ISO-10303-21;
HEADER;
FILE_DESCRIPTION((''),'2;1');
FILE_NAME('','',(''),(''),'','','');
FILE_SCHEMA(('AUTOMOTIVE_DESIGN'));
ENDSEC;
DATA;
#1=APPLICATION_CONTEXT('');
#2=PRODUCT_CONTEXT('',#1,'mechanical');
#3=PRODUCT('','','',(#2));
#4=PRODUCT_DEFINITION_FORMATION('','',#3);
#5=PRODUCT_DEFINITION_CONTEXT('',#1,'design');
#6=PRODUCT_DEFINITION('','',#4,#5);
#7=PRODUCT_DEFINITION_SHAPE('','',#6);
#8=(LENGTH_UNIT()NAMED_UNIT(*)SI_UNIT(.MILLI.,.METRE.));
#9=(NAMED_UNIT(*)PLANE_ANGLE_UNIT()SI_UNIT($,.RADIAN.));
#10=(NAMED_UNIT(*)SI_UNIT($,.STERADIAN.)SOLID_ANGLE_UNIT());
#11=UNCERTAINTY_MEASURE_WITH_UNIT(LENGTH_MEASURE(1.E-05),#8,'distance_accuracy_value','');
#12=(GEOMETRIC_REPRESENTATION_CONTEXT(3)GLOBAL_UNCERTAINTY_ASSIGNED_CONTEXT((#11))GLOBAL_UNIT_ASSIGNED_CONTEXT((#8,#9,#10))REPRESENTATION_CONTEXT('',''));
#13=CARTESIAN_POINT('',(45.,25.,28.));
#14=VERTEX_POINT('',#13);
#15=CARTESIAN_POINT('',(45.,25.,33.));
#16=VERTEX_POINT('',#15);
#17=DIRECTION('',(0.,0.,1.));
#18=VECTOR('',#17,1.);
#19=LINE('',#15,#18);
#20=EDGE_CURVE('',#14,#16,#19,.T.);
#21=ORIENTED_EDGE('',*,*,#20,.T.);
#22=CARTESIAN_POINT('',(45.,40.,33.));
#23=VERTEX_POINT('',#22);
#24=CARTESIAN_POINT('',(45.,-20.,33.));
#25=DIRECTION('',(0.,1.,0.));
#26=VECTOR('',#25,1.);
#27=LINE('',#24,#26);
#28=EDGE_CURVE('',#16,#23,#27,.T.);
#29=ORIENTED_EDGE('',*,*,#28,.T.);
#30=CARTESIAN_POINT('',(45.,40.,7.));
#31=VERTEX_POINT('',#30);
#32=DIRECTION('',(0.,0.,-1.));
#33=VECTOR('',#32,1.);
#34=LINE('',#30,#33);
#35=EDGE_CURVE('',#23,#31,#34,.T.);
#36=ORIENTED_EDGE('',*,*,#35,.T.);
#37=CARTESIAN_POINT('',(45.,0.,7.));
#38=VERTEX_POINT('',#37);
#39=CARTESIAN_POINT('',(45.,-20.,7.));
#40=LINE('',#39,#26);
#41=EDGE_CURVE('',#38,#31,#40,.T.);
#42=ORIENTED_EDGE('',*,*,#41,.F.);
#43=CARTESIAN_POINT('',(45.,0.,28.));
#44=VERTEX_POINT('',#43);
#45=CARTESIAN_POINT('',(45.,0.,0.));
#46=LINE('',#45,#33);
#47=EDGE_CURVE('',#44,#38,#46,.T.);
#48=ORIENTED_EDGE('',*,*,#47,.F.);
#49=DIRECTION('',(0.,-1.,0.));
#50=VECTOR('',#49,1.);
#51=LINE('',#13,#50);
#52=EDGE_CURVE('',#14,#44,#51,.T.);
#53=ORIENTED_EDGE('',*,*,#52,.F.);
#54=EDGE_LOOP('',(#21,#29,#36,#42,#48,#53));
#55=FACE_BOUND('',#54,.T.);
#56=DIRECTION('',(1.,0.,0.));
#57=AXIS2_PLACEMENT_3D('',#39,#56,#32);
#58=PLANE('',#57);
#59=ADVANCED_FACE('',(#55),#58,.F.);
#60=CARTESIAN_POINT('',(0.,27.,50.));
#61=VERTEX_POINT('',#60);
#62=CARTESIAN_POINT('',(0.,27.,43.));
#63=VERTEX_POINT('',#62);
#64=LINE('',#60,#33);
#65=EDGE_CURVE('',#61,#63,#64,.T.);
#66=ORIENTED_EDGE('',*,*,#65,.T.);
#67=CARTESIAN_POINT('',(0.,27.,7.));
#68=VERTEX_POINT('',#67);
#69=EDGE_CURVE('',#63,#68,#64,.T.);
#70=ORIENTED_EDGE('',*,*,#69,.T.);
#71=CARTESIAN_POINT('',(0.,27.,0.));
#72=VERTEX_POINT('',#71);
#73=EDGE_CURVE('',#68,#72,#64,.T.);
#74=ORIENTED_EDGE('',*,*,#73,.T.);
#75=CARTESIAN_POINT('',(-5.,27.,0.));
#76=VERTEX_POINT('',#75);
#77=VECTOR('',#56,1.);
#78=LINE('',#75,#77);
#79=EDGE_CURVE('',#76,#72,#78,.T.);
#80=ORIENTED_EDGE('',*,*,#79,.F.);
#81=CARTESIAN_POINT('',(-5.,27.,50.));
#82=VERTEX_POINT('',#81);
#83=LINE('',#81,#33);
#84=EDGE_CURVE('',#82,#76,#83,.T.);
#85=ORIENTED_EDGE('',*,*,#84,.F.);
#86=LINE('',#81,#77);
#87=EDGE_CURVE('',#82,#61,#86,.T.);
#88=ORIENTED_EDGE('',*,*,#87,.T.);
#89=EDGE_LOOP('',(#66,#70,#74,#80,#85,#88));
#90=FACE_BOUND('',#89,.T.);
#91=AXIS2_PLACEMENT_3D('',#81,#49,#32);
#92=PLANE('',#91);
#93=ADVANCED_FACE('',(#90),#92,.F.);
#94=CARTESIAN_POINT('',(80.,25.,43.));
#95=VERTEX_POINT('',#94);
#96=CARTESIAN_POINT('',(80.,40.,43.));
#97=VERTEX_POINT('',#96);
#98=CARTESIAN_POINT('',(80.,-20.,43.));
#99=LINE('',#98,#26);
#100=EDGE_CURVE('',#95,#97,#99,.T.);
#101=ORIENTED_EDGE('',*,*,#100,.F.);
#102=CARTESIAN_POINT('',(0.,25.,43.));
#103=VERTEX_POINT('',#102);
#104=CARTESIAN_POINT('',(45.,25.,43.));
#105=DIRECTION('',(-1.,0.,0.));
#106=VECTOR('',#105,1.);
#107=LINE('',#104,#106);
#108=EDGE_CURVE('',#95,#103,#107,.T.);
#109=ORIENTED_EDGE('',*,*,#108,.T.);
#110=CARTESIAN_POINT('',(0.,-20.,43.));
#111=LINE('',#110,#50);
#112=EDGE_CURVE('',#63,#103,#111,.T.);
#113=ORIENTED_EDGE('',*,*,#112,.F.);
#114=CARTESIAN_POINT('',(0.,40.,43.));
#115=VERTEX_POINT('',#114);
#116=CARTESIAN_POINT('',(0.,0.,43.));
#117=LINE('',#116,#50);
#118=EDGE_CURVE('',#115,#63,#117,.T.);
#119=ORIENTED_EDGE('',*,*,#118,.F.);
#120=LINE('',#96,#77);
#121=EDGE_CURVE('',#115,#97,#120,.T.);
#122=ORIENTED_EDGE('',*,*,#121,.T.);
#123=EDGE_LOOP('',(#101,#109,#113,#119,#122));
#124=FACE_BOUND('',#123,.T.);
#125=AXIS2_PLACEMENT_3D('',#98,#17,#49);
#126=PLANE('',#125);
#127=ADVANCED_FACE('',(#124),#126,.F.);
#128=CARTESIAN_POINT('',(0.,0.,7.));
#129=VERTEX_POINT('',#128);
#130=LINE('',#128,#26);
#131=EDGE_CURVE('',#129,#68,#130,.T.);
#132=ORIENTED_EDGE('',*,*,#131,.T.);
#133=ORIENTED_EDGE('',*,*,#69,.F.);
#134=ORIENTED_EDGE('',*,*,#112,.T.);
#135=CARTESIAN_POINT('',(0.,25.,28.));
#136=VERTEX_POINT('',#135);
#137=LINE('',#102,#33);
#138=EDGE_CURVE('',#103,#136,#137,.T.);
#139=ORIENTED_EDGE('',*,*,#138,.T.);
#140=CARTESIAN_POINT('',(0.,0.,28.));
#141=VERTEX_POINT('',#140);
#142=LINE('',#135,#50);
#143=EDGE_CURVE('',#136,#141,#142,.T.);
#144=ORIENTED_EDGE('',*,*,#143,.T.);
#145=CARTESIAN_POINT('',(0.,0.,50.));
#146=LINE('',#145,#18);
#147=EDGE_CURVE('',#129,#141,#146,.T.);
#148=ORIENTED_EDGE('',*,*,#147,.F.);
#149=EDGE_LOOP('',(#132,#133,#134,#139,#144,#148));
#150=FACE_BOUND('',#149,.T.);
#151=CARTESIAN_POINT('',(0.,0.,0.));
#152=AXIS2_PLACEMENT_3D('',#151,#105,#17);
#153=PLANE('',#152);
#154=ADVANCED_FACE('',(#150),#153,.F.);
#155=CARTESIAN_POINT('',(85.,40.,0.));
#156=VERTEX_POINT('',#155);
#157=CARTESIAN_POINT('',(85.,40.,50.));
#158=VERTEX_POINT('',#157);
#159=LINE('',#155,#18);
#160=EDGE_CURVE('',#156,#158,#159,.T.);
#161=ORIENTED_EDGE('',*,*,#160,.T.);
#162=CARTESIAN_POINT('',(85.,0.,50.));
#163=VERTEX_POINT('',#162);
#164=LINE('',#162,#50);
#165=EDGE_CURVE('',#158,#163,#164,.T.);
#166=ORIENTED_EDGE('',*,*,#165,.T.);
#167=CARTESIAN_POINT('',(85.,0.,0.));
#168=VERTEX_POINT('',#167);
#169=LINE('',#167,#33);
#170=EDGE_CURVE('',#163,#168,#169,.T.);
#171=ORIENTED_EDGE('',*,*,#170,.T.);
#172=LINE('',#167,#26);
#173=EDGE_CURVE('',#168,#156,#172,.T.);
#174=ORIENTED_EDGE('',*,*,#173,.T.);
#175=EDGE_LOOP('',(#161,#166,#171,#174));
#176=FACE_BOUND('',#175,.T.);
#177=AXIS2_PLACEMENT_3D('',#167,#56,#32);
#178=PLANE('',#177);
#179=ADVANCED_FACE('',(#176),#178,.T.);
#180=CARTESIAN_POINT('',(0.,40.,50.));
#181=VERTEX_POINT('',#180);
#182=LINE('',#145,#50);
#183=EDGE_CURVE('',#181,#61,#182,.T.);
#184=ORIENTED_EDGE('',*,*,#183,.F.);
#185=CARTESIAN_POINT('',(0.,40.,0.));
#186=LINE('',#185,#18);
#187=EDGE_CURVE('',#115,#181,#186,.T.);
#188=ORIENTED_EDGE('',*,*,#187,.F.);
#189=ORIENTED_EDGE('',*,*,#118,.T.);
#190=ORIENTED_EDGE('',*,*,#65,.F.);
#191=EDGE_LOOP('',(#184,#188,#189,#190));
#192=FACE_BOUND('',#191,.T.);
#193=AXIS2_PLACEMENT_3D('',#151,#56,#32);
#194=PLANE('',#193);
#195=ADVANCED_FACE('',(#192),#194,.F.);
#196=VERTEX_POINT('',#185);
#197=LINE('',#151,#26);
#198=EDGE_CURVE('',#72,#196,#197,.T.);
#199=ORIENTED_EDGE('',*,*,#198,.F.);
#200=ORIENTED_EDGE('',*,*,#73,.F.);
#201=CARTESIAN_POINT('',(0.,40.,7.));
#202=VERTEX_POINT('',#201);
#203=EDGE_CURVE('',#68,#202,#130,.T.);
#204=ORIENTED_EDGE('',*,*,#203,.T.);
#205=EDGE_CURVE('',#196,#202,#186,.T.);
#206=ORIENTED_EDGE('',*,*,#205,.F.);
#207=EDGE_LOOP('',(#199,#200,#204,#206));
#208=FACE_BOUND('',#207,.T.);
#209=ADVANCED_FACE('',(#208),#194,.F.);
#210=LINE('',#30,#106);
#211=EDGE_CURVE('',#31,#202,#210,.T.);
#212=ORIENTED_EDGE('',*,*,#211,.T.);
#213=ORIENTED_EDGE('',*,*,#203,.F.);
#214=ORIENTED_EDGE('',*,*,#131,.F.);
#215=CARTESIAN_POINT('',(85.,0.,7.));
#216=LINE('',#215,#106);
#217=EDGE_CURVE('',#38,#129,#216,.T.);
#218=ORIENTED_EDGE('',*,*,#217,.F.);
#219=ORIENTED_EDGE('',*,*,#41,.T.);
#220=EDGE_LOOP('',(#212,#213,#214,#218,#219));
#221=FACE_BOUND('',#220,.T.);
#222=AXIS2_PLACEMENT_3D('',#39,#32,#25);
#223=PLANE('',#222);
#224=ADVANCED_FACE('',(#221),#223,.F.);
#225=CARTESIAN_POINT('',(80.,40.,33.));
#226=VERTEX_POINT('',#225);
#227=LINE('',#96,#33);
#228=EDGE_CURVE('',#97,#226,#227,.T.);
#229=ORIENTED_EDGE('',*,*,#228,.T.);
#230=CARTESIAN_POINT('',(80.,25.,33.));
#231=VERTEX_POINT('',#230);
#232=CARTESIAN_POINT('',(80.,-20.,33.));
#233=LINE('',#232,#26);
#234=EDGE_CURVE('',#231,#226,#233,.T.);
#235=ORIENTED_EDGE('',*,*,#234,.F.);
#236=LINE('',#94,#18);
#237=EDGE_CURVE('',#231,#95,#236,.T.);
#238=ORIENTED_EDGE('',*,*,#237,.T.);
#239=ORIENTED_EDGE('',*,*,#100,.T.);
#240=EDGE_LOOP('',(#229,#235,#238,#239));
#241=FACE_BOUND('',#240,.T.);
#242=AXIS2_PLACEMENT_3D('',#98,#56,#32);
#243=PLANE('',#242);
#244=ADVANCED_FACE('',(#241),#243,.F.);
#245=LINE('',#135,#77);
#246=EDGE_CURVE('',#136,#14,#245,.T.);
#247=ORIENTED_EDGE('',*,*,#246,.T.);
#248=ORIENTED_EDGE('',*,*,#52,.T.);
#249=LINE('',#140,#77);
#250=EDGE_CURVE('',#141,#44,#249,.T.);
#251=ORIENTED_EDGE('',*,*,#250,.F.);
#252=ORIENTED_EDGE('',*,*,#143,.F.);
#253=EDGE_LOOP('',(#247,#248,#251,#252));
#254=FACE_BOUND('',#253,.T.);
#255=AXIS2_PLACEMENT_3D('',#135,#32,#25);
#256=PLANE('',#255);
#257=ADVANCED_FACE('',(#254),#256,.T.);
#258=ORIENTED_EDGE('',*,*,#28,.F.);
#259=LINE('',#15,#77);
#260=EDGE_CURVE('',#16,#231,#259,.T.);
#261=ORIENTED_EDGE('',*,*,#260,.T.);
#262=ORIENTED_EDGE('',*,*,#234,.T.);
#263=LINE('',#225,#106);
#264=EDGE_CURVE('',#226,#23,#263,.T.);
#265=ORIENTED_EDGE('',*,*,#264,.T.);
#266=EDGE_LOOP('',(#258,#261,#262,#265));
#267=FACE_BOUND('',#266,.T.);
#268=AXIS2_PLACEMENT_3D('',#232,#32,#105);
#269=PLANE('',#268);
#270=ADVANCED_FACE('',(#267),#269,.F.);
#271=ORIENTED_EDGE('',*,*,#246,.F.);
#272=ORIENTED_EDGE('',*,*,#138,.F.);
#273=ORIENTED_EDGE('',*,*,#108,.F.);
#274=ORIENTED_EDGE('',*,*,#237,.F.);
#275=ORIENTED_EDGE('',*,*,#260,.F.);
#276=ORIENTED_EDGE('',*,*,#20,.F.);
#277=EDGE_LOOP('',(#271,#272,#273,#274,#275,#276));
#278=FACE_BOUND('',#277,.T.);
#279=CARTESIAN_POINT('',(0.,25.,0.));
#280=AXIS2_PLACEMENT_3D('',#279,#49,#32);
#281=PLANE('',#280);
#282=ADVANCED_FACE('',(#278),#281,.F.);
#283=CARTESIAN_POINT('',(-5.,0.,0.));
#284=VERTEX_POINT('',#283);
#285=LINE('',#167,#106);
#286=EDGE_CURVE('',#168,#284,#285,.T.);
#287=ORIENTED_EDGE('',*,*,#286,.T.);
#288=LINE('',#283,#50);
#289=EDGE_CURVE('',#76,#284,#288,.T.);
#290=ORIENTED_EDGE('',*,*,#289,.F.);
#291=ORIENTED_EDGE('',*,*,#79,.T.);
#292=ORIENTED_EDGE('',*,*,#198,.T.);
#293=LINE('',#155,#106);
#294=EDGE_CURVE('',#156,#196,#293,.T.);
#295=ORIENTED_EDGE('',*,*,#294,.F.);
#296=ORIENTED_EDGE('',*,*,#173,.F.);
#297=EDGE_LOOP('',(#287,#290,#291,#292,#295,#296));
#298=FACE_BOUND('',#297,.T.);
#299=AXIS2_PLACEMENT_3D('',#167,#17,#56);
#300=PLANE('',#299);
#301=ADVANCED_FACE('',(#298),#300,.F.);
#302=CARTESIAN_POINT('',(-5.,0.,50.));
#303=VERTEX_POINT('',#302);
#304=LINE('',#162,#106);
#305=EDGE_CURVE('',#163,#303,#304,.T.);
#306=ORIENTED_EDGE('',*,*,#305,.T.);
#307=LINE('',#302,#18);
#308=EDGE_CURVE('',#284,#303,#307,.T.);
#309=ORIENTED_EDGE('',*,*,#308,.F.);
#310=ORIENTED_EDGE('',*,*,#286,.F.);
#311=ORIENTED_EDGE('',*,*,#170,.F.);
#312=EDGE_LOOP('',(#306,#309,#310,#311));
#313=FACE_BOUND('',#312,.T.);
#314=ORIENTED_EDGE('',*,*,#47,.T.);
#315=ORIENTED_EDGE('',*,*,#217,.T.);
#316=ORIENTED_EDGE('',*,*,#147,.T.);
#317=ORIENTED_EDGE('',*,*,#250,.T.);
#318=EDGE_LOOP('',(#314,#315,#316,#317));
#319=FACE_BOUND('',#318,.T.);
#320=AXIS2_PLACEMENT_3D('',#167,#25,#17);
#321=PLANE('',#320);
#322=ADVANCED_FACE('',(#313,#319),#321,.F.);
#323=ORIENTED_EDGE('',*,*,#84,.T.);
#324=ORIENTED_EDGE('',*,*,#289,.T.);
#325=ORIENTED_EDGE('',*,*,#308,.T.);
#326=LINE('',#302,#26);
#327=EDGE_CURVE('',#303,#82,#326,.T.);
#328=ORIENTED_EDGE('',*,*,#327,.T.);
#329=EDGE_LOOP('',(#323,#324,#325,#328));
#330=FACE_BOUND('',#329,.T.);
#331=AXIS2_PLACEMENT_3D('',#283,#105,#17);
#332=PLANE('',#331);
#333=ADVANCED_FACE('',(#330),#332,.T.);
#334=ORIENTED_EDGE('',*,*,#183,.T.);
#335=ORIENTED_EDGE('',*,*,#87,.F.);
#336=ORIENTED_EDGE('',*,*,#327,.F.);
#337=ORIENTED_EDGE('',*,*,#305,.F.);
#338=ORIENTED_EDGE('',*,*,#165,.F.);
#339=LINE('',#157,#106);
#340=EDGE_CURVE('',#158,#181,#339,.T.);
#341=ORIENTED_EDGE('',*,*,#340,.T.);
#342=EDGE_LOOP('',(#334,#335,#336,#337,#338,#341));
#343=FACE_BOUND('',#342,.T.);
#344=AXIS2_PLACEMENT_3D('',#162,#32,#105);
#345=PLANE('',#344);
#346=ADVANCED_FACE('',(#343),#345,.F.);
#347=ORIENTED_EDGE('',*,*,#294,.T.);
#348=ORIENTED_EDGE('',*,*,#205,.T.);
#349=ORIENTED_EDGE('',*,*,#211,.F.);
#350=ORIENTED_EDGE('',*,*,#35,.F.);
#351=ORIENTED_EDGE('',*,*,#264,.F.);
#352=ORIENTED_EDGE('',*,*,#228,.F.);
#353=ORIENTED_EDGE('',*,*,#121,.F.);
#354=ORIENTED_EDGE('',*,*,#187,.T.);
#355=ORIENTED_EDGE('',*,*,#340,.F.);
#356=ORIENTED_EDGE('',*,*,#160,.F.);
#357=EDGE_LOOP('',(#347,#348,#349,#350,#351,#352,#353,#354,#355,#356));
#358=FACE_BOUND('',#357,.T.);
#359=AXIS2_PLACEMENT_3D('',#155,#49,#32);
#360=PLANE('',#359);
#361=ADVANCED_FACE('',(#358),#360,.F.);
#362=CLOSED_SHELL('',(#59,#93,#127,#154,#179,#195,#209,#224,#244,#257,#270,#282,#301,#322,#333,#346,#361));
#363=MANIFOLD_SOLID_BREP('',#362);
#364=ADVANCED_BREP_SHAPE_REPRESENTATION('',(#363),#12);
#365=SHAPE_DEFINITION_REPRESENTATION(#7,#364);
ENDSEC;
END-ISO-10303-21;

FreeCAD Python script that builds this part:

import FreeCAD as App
import Part
import Sketcher

V = App.Vector
Q = App.Units.Quantity


def add_polygon(sketch, points):
    """Adds a closed chain of lines whose ends are joined by coincident constraints."""
    first, n = sketch.GeometryCount, len(points)
    for a, b in zip(points, points[1:] + points[:1]):
        sketch.addGeometry(Part.LineSegment(App.Vector(*a, 0), App.Vector(*b, 0)), False)
    for i in range(n):
        sketch.addConstraint(Sketcher.Constraint("Coincident", first + i, 2, first + (i + 1) % n, 1))

doc = App.newDocument("Part")
body = doc.addObject("PartDesign::Body", "Body")

# Sketch on YZ plane
sketch1 = body.newObject("Sketcher::SketchObject", "Sketch")
sketch1.AttachmentSupport = (doc.getObject("YZ_Plane"), [""])
sketch1.MapMode = "FlatFace"
add_polygon(sketch1, [(40, 50), (0, 50), (0, 0), (40, 0)])  # lines 0-3
sketch1.addConstraint([
    Sketcher.Constraint("Horizontal", 0),
    Sketcher.Constraint("Vertical", 1),
    Sketcher.Constraint("Horizontal", 2),
    Sketcher.Constraint("Vertical", 3),
    Sketcher.Constraint("Coincident", 1, 2, -1, 1),
    Sketcher.Constraint("DistanceX", 0, 2, 0, 1, Q("40 mm")),
    Sketcher.Constraint("DistanceY", 1, 2, 1, 1, Q("50 mm")),
])
pad1 = body.newObject("PartDesign::Pad", "Pad")
pad1.Profile = sketch1
pad1.Length = 85

# Sketch on XZ plane
sketch2 = body.newObject("Sketcher::SketchObject", "Sketch001")
sketch2.AttachmentSupport = (doc.getObject("XZ_Plane"), [""])
sketch2.MapMode = "FlatFace"
sketch2.AttachmentOffset = App.Placement(V(0, 0, -40), App.Rotation())
add_polygon(sketch2, [(45, 7), (0, 7), (0, 43), (80, 43), (80, 33), (45, 33)])  # lines 0-5
sketch2.addConstraint([
    Sketcher.Constraint("Horizontal", 0),
    Sketcher.Constraint("Vertical", 1),
    Sketcher.Constraint("Horizontal", 2),
    Sketcher.Constraint("Vertical", 3),
    Sketcher.Constraint("Horizontal", 4),
    Sketcher.Constraint("Vertical", 5),
    Sketcher.Constraint("PointOnObject", 0, 2, -2),
    Sketcher.Constraint("DistanceX", 0, 2, 0, 1, Q("45 mm")),
    Sketcher.Constraint("DistanceX", 2, 1, 2, 2, Q("80 mm")),
    Sketcher.Constraint("DistanceY", 1, 1, 1, 2, Q("36 mm")),
    Sketcher.Constraint("DistanceY", 3, 2, 3, 1, Q("10 mm")),
    Sketcher.Constraint("DistanceY", -1, 1, 0, 2, Q("7 mm")),
])
pocket1 = body.newObject("PartDesign::Pocket", "Pocket")
pocket1.Profile = sketch2
pocket1.Length = 60
pocket1.Reversed = True

# Sketch on XZ plane
sketch3 = body.newObject("Sketcher::SketchObject", "Sketch002")
sketch3.AttachmentSupport = (doc.getObject("XZ_Plane"), [""])
sketch3.MapMode = "FlatFace"
add_polygon(sketch3, [(80, 43), (0, 43), (0, 28), (45, 28), (45, 33), (80, 33)])  # lines 0-5
sketch3.addConstraint([
    Sketcher.Constraint("Horizontal", 0),
    Sketcher.Constraint("Vertical", 1),
    Sketcher.Constraint("Horizontal", 2),
    Sketcher.Constraint("Vertical", 3),
    Sketcher.Constraint("Horizontal", 4),
    Sketcher.Constraint("Vertical", 5),
    Sketcher.Constraint("PointOnObject", 0, 2, -2),
    Sketcher.Constraint("DistanceX", 0, 2, 0, 1, Q("80 mm")),
    Sketcher.Constraint("DistanceX", 2, 1, 2, 2, Q("45 mm")),
    Sketcher.Constraint("DistanceY", 1, 2, 1, 1, Q("15 mm")),
    Sketcher.Constraint("DistanceY", 3, 1, 3, 2, Q("5 mm")),
    Sketcher.Constraint("DistanceY", -1, 1, 0, 2, Q("43 mm")),
])
pad2 = body.newObject("PartDesign::Pad", "Pad001")
pad2.Profile = sketch3
pad2.Length = 25
pad2.Reversed = True

# Sketch on YZ plane
sketch4 = body.newObject("Sketcher::SketchObject", "Sketch003")
sketch4.AttachmentSupport = (doc.getObject("YZ_Plane"), [""])
sketch4.MapMode = "FlatFace"
add_polygon(sketch4, [(27, 0), (0, 0), (0, 50), (27, 50)])  # lines 0-3
sketch4.addConstraint([
    Sketcher.Constraint("Horizontal", 0),
    Sketcher.Constraint("Vertical", 1),
    Sketcher.Constraint("Horizontal", 2),
    Sketcher.Constraint("Vertical", 3),
    Sketcher.Constraint("Coincident", 0, 2, -1, 1),
    Sketcher.Constraint("DistanceX", 0, 2, 0, 1, Q("27 mm")),
    Sketcher.Constraint("DistanceY", 1, 1, 1, 2, Q("50 mm")),
])
pad3 = body.newObject("PartDesign::Pad", "Pad002")
pad3.Profile = sketch4
pad3.Length = 5
pad3.Reversed = True

doc.recompute()
